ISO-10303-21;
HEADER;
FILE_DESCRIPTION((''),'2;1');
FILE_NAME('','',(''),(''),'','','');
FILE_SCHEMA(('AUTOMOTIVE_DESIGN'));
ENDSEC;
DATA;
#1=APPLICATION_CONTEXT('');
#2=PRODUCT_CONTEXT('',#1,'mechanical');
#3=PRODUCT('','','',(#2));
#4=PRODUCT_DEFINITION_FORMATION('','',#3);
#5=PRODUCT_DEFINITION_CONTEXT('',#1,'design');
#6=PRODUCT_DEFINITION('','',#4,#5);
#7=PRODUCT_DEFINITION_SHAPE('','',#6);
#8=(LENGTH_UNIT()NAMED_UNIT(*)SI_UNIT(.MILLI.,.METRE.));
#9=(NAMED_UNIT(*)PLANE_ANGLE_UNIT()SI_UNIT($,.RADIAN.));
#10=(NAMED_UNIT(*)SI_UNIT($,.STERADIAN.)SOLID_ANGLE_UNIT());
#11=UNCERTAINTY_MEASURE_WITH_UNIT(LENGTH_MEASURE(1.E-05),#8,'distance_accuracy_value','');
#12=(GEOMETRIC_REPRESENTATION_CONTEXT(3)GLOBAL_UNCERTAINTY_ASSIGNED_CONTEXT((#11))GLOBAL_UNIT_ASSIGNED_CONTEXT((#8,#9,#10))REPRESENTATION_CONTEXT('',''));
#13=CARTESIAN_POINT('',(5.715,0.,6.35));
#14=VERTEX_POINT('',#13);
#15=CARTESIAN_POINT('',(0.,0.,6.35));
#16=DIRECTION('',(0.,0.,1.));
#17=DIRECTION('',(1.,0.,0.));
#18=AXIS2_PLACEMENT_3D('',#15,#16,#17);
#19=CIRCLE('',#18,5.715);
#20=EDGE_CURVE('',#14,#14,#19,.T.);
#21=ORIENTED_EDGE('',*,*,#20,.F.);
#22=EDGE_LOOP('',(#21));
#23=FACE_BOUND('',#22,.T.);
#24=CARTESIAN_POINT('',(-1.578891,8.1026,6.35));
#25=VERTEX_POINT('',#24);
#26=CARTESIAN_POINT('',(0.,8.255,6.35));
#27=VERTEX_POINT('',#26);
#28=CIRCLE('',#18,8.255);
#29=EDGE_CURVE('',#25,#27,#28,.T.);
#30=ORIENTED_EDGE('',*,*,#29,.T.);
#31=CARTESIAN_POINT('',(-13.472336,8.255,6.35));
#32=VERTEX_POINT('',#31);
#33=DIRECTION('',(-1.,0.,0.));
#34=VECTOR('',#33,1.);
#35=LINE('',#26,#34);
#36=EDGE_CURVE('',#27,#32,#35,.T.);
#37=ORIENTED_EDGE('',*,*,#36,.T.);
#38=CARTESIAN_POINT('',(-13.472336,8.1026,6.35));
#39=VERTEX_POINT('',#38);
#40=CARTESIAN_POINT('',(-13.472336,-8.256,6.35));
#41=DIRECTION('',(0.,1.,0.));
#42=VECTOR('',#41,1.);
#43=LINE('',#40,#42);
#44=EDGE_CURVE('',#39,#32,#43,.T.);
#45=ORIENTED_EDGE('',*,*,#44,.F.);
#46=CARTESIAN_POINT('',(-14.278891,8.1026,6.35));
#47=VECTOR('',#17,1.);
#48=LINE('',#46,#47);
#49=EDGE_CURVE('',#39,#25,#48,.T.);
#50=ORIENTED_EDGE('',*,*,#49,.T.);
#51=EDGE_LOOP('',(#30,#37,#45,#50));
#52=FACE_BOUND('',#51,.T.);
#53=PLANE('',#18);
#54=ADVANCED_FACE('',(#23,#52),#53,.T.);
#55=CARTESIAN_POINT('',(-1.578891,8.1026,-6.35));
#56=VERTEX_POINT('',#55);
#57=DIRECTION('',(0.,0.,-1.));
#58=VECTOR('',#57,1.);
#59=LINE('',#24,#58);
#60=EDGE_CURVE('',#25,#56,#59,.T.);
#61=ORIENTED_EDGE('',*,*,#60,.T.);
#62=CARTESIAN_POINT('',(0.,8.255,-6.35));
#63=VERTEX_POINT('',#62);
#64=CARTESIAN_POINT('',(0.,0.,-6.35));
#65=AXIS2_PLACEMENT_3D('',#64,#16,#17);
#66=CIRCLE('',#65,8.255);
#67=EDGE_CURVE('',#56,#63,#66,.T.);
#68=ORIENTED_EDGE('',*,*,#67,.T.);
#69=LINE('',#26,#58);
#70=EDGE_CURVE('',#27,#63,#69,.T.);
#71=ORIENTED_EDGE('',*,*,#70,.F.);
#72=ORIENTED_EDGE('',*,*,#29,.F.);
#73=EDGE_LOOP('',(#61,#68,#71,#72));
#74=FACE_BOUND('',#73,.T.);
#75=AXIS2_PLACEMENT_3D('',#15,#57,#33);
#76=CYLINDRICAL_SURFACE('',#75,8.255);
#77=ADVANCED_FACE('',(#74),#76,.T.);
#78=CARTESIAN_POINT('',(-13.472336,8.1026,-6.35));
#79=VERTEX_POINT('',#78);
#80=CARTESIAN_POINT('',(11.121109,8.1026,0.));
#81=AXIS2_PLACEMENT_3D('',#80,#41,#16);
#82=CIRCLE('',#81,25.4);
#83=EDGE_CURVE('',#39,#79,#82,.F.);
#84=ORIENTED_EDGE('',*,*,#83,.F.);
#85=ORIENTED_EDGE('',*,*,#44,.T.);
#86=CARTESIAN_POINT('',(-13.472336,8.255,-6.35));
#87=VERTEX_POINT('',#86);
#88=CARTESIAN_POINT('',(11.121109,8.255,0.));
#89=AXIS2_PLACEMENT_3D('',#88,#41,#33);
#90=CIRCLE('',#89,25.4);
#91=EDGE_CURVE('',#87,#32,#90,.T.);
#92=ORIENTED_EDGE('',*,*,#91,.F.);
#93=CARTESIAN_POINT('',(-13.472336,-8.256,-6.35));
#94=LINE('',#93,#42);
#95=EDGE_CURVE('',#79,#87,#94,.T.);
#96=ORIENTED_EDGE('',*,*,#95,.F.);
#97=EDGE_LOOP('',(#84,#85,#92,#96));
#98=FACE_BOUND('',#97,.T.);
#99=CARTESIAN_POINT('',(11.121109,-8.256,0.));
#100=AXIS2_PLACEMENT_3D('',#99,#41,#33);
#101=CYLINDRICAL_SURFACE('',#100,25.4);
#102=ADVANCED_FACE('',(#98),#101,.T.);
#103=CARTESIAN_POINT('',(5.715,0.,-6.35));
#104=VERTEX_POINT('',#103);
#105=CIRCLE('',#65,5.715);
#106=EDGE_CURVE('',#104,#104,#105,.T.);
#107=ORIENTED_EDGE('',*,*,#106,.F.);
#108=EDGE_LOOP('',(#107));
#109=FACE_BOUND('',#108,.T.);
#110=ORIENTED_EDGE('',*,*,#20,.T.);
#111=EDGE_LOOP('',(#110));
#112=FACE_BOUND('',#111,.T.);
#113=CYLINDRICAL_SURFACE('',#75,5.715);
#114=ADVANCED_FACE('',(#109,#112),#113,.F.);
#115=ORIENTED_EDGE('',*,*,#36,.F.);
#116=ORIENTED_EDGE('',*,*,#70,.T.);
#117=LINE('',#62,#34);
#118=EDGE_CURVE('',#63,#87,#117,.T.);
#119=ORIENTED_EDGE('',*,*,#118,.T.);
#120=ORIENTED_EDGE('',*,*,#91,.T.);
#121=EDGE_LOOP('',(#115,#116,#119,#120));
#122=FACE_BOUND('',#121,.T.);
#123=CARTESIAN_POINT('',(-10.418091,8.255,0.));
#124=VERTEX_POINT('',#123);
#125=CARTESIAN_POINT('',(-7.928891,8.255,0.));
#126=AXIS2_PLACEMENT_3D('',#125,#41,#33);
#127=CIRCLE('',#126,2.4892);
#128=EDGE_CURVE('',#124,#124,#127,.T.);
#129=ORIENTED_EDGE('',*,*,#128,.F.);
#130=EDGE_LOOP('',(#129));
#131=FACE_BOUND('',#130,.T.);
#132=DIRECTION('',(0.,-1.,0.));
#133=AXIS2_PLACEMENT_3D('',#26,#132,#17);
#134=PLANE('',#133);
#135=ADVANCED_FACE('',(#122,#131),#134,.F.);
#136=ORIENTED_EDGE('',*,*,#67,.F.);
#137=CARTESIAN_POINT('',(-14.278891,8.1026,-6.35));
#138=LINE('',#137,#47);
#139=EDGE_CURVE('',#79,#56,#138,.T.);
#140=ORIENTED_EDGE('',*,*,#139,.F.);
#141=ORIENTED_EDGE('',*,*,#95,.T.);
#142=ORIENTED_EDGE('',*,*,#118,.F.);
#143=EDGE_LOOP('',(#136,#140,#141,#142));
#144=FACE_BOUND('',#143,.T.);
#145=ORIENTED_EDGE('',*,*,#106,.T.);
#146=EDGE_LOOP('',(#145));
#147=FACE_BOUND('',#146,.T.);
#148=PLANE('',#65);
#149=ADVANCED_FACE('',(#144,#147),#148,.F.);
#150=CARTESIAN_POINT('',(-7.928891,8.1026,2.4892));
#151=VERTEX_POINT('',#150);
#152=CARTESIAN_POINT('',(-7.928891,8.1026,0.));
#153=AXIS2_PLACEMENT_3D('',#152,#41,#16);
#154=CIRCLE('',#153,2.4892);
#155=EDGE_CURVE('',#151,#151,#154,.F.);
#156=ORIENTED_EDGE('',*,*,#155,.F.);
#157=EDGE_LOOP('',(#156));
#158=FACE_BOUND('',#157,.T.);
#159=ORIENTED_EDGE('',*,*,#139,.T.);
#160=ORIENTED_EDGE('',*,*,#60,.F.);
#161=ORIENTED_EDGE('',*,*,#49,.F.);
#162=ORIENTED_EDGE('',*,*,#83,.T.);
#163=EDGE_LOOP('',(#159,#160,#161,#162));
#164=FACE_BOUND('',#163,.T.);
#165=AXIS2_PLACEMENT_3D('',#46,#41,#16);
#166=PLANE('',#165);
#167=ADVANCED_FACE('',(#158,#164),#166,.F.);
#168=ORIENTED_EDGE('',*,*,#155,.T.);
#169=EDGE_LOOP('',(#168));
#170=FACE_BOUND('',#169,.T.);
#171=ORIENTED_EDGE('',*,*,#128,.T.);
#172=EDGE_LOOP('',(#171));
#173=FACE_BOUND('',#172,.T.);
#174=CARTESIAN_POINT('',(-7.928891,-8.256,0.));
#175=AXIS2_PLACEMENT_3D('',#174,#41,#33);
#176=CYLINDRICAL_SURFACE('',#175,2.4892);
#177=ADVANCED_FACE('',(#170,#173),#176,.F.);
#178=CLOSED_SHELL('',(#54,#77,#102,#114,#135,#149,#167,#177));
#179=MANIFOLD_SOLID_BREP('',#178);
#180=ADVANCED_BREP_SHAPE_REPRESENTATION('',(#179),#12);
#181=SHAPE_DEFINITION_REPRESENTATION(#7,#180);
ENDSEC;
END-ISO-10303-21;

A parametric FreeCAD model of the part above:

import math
import FreeCAD as App
import Part
import Sketcher
from FreeCAD import Vector
Q = App.Units.Quantity

doc = App.newDocument("Part")
body = doc.addObject("PartDesign::Body", "Body")

# Sketch on XY plane
sketch1 = body.newObject("Sketcher::SketchObject", "Sketch")
sketch1.AttachmentSupport = (doc.getObject("XY_Plane"), [""])
sketch1.MapMode = "FlatFace"
sketch1.addGeometry([
    Part.LineSegment(Vector(0, 8.26, 0), Vector(-14.28, 8.26, 0)),  # 0
    Part.LineSegment(Vector(-14.28, 8.26, 0), Vector(-14.28, 8.1, 0)),  # 1
    Part.LineSegment(Vector(-14.28, 8.1, 0), Vector(-1.58, 8.1, 0)),  # 2
    Part.ArcOfCircle(Part.Circle(Vector(0, 0, 0), Vector(0, 0, 1), 8.26), math.radians(101), math.radians(450)),  # 3
    Part.Circle(Vector(0, 0, 0), Vector(0, 0, 1), 5.71),  # 4
], False)
sketch1.addConstraint([
    Sketcher.Constraint("Coincident", 0, 2, 1, 1),
    Sketcher.Constraint("Coincident", 1, 2, 2, 1),
    Sketcher.Constraint("Coincident", 2, 2, 3, 1),
    Sketcher.Constraint("Tangent", 3, 2, 0, 1),
    Sketcher.Constraint("Horizontal", 0),
    Sketcher.Constraint("Vertical", 1),
    Sketcher.Constraint("Horizontal", 2),
    Sketcher.Constraint("Coincident", 3, 3, -1, 1),
    Sketcher.Constraint("Coincident", 4, 3, -1, 1),
    Sketcher.Constraint("Diameter", 4, Q("0.45 in")),
    Sketcher.Constraint("DistanceX", 2, 1, 2, 2, Q("0.5 in")),
    Sketcher.Constraint("Radius", 3, Q("0.325 in")),
    Sketcher.Constraint("DistanceY", 1, 2, 1, 1, Q("0.006 in")),
])
pad1 = body.newObject("PartDesign::Pad", "Pad")
pad1.Profile = sketch1
pad1.Length = Q("0.5 in")
pad1.Midplane = True

# Sketch on XZ plane
sketch2 = body.newObject("Sketcher::SketchObject", "Sketch001")
sketch2.AttachmentSupport = (doc.getObject("XZ_Plane"), [""])
sketch2.MapMode = "FlatFace"
sketch2.AttachmentOffset = App.Placement(Vector(0, 0, -0.325 * 25.4), App.Rotation())
sketch2.addGeometry(Part.Circle(Vector(-7.9, 0, 0), Vector(0, 0, 1), 2.5), False)
sketch2.addConstraint([
    Sketcher.Constraint("PointOnObject", 0, 3, -1),
    Sketcher.Constraint("Diameter", 0, Q("0.196 in")),
    Sketcher.Constraint("DistanceX", 0, 3, -1, 1, Q("7.928891 mm")),
])
pocket1 = body.newObject("PartDesign::Pocket", "Pocket")
pocket1.Profile = sketch2
pocket1.Type = "UpToFirst"
pocket1.Reversed = True

# Sketch on XZ plane
sketch3 = body.newObject("Sketcher::SketchObject", "Sketch002")
sketch3.AttachmentSupport = (doc.getObject("XZ_Plane"), [""])
sketch3.MapMode = "FlatFace"
sketch3.AttachmentOffset = App.Placement(Vector(0, 0, -0.325 * 25.4), App.Rotation())
sketch3.addGeometry([
    Part.ArcOfCircle(Part.Circle(Vector(11.1, 0, 0), Vector(0, 0, 1), 25.4), math.radians(-180), math.radians(-165.52)),
    Part.LineSegment(Vector(-13.5, -6.3, 0), Vector(-14.3, -6.3, 0)),
    Part.LineSegment(Vector(-14.3, -6.3, 0), Vector(-14.3, 0, 0)),
], False)
sketch3.addConstraint([
    Sketcher.Constraint("Coincident", 0, 2, 1, 1),
    Sketcher.Constraint("Coincident", 1, 2, 2, 1),
    Sketcher.Constraint("Tangent", 2, 2, 0, 1),
    Sketcher.Constraint("Horizontal", 1),
    Sketcher.Constraint("Vertical", 2),
    Sketcher.Constraint("PointOnObject", 0, 3, -1),
    Sketcher.Constraint("Radius", 0, Q("1 in")),
    Sketcher.Constraint("DistanceY", 2, 1, 2, 2, Q("0.25 in")),
    Sketcher.Constraint("DistanceX", -1, 1, 0, 3, Q("11.121109 mm")),
])
pocket2 = body.newObject("PartDesign::Pocket", "Pocket001")
pocket2.Profile = sketch3
pocket2.Type = "UpToFirst"
pocket2.Reversed = True

# Sketch on XZ plane
sketch4 = body.newObject("Sketcher::SketchObject", "Sketch003")
sketch4.AttachmentSupport = (doc.getObject("XZ_Plane"), [""])
sketch4.MapMode = "FlatFace"
sketch4.AttachmentOffset = App.Placement(Vector(0, 0, -0.325 * 25.4), App.Rotation())
sketch4.addGeometry([
    Part.ArcOfCircle(Part.Circle(Vector(11.1, 0, 0), Vector(0, 0, 1), 25.4), math.radians(165.52), math.radians(180)),
    Part.LineSegment(Vector(-14.3, 0, 0), Vector(-14.3, 6.3, 0)),
    Part.LineSegment(Vector(-14.3, 6.3, 0), Vector(-13.5, 6.3, 0)),
], False)
sketch4.addConstraint([
    Sketcher.Constraint("Tangent", 0, 2, 1, 1),
    Sketcher.Constraint("Coincident", 1, 2, 2, 1),
    Sketcher.Constraint("Coincident", 2, 2, 0, 1),
    Sketcher.Constraint("Vertical", 1),
    Sketcher.Constraint("Horizontal", 2),
    Sketcher.Constraint("PointOnObject", 0, 3, -1),
    Sketcher.Constraint("Radius", 0, Q("1 in")),
    Sketcher.Constraint("DistanceY", 1, 1, 1, 2, Q("0.25 in")),
    Sketcher.Constraint("DistanceX", -1, 1, 0, 3, Q("11.121109 mm")),
])
pocket3 = body.newObject("PartDesign::Pocket", "Pocket002")
pocket3.Profile = sketch4
pocket3.Type = "UpToFirst"
pocket3.Reversed = True

doc.recompute()
